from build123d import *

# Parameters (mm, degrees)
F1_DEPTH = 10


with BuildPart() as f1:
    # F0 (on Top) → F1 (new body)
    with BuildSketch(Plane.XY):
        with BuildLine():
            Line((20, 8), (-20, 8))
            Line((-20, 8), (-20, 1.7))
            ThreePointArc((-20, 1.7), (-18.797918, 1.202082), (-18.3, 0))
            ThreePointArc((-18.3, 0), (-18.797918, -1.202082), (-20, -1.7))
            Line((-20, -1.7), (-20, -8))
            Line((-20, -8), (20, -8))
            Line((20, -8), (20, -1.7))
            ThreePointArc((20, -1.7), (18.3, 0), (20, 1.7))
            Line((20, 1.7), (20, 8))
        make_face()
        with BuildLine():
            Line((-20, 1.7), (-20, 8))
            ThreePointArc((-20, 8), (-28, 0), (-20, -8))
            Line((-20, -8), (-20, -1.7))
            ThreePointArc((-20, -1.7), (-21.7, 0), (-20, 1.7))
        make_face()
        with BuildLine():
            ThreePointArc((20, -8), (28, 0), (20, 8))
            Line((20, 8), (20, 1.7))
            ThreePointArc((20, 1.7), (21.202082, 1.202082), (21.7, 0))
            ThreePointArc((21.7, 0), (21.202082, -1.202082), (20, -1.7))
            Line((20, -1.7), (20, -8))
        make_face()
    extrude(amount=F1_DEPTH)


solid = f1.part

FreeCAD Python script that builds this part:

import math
import FreeCAD as App
import Part
import Sketcher

V = App.Vector
Q = App.Units.Quantity

doc = App.newDocument("Part")
body = doc.addObject("PartDesign::Body", "Body")

sketch1 = body.newObject("Sketcher::SketchObject", "Sketch")
sketch1.AttachmentSupport = (doc.getObject("XY_Plane"), [""])
sketch1.MapMode = "FlatFace"
sketch1.addGeometry(Part.LineSegment(V(20, 8, 0), V(-20, 8, 0)), False)
sketch1.addGeometry(Part.ArcOfCircle(Part.Circle(V(-20, 0, 0), V(0, 0, 1), 8), math.radians(90), math.radians(270)), False)
sketch1.addGeometry(Part.LineSegment(V(-20, -8, 0), V(20, -8, 0)), False)
sketch1.addGeometry(Part.ArcOfCircle(Part.Circle(V(20, 0, 0), V(0, 0, 1), 8), math.radians(-90), math.radians(90)), False)
sketch1.addGeometry(Part.ArcOfCircle(Part.Circle(V(20, 0, 0), V(0, 0, 1), 1.7), math.radians(90), math.radians(270)), False)
sketch1.addGeometry(Part.ArcOfCircle(Part.Circle(V(20, 0, 0), V(0, 0, 1), 1.7), math.radians(0), math.radians(90)), False)
sketch1.addGeometry(Part.ArcOfCircle(Part.Circle(V(20, 0, 0), V(0, 0, 1), 1.7), math.radians(-90), math.radians(0)), False)
sketch1.addGeometry(Part.ArcOfCircle(Part.Circle(V(-20, 0, 0), V(0, 0, 1), 1.7), math.radians(0), math.radians(90)), False)
sketch1.addGeometry(Part.ArcOfCircle(Part.Circle(V(-20, 0, 0), V(0, 0, 1), 1.7), math.radians(-90), math.radians(0)), False)
sketch1.addGeometry(Part.ArcOfCircle(Part.Circle(V(-20, 0, 0), V(0, 0, 1), 1.7), math.radians(90), math.radians(270)), False)
sketch1.addConstraint(Sketcher.Constraint("Tangent", 0, 2, 1, 1))
sketch1.addConstraint(Sketcher.Constraint("Tangent", 1, 2, 2, 1))
sketch1.addConstraint(Sketcher.Constraint("Tangent", 2, 2, 3, 1))
sketch1.addConstraint(Sketcher.Constraint("Tangent", 3, 2, 0, 1))
sketch1.addConstraint(Sketcher.Constraint("Tangent", 4, 1, 5, 2))
sketch1.addConstraint(Sketcher.Constraint("Tangent", 5, 1, 6, 2))
sketch1.addConstraint(Sketcher.Constraint("Tangent", 6, 1, 4, 2))
sketch1.addConstraint(Sketcher.Constraint("Tangent", 7, 1, 8, 2))
sketch1.addConstraint(Sketcher.Constraint("Tangent", 8, 1, 9, 2))
sketch1.addConstraint(Sketcher.Constraint("Tangent", 9, 1, 7, 2))
sketch1.addConstraint(Sketcher.Constraint("Horizontal", 0))
sketch1.addConstraint(Sketcher.Constraint("Horizontal", 2))
sketch1.addConstraint(Sketcher.Constraint("Coincident", 4, 3, 3, 3))
sketch1.addConstraint(Sketcher.Constraint("Coincident", 7, 3, 1, 3))
sketch1.addConstraint(Sketcher.Constraint("Equal", 6, 7))
sketch1.addConstraint(Sketcher.Constraint("Symmetric", 1, 3, 3, 3, -1, 1))
sketch1.addConstraint(Sketcher.Constraint("PointOnObject", 5, 1, -1))
sketch1.addConstraint(Sketcher.Constraint("PointOnObject", 7, 1, -1))
sketch1.addConstraint(Sketcher.Constraint("Vertical", 3, 2, 4, 1))
sketch1.addConstraint(Sketcher.Constraint("Vertical", 4, 1, 6, 1))
sketch1.addConstraint(Sketcher.Constraint("Vertical", 1, 2, 8, 1))
sketch1.addConstraint(Sketcher.Constraint("Vertical", 8, 1, 9, 1))
sketch1.addConstraint(Sketcher.Constraint("Radius", 1, Q("8 mm")))
sketch1.addConstraint(Sketcher.Constraint("Radius", 4, Q("1.7 mm")))
sketch1.addConstraint(Sketcher.Constraint("DistanceX", 0, 2, 0, 1, Q("40 mm")))
pad1 = body.newObject("PartDesign::Pad", "Pad")
pad1.Profile = sketch1
pad1.Length = 10

doc.recompute()
